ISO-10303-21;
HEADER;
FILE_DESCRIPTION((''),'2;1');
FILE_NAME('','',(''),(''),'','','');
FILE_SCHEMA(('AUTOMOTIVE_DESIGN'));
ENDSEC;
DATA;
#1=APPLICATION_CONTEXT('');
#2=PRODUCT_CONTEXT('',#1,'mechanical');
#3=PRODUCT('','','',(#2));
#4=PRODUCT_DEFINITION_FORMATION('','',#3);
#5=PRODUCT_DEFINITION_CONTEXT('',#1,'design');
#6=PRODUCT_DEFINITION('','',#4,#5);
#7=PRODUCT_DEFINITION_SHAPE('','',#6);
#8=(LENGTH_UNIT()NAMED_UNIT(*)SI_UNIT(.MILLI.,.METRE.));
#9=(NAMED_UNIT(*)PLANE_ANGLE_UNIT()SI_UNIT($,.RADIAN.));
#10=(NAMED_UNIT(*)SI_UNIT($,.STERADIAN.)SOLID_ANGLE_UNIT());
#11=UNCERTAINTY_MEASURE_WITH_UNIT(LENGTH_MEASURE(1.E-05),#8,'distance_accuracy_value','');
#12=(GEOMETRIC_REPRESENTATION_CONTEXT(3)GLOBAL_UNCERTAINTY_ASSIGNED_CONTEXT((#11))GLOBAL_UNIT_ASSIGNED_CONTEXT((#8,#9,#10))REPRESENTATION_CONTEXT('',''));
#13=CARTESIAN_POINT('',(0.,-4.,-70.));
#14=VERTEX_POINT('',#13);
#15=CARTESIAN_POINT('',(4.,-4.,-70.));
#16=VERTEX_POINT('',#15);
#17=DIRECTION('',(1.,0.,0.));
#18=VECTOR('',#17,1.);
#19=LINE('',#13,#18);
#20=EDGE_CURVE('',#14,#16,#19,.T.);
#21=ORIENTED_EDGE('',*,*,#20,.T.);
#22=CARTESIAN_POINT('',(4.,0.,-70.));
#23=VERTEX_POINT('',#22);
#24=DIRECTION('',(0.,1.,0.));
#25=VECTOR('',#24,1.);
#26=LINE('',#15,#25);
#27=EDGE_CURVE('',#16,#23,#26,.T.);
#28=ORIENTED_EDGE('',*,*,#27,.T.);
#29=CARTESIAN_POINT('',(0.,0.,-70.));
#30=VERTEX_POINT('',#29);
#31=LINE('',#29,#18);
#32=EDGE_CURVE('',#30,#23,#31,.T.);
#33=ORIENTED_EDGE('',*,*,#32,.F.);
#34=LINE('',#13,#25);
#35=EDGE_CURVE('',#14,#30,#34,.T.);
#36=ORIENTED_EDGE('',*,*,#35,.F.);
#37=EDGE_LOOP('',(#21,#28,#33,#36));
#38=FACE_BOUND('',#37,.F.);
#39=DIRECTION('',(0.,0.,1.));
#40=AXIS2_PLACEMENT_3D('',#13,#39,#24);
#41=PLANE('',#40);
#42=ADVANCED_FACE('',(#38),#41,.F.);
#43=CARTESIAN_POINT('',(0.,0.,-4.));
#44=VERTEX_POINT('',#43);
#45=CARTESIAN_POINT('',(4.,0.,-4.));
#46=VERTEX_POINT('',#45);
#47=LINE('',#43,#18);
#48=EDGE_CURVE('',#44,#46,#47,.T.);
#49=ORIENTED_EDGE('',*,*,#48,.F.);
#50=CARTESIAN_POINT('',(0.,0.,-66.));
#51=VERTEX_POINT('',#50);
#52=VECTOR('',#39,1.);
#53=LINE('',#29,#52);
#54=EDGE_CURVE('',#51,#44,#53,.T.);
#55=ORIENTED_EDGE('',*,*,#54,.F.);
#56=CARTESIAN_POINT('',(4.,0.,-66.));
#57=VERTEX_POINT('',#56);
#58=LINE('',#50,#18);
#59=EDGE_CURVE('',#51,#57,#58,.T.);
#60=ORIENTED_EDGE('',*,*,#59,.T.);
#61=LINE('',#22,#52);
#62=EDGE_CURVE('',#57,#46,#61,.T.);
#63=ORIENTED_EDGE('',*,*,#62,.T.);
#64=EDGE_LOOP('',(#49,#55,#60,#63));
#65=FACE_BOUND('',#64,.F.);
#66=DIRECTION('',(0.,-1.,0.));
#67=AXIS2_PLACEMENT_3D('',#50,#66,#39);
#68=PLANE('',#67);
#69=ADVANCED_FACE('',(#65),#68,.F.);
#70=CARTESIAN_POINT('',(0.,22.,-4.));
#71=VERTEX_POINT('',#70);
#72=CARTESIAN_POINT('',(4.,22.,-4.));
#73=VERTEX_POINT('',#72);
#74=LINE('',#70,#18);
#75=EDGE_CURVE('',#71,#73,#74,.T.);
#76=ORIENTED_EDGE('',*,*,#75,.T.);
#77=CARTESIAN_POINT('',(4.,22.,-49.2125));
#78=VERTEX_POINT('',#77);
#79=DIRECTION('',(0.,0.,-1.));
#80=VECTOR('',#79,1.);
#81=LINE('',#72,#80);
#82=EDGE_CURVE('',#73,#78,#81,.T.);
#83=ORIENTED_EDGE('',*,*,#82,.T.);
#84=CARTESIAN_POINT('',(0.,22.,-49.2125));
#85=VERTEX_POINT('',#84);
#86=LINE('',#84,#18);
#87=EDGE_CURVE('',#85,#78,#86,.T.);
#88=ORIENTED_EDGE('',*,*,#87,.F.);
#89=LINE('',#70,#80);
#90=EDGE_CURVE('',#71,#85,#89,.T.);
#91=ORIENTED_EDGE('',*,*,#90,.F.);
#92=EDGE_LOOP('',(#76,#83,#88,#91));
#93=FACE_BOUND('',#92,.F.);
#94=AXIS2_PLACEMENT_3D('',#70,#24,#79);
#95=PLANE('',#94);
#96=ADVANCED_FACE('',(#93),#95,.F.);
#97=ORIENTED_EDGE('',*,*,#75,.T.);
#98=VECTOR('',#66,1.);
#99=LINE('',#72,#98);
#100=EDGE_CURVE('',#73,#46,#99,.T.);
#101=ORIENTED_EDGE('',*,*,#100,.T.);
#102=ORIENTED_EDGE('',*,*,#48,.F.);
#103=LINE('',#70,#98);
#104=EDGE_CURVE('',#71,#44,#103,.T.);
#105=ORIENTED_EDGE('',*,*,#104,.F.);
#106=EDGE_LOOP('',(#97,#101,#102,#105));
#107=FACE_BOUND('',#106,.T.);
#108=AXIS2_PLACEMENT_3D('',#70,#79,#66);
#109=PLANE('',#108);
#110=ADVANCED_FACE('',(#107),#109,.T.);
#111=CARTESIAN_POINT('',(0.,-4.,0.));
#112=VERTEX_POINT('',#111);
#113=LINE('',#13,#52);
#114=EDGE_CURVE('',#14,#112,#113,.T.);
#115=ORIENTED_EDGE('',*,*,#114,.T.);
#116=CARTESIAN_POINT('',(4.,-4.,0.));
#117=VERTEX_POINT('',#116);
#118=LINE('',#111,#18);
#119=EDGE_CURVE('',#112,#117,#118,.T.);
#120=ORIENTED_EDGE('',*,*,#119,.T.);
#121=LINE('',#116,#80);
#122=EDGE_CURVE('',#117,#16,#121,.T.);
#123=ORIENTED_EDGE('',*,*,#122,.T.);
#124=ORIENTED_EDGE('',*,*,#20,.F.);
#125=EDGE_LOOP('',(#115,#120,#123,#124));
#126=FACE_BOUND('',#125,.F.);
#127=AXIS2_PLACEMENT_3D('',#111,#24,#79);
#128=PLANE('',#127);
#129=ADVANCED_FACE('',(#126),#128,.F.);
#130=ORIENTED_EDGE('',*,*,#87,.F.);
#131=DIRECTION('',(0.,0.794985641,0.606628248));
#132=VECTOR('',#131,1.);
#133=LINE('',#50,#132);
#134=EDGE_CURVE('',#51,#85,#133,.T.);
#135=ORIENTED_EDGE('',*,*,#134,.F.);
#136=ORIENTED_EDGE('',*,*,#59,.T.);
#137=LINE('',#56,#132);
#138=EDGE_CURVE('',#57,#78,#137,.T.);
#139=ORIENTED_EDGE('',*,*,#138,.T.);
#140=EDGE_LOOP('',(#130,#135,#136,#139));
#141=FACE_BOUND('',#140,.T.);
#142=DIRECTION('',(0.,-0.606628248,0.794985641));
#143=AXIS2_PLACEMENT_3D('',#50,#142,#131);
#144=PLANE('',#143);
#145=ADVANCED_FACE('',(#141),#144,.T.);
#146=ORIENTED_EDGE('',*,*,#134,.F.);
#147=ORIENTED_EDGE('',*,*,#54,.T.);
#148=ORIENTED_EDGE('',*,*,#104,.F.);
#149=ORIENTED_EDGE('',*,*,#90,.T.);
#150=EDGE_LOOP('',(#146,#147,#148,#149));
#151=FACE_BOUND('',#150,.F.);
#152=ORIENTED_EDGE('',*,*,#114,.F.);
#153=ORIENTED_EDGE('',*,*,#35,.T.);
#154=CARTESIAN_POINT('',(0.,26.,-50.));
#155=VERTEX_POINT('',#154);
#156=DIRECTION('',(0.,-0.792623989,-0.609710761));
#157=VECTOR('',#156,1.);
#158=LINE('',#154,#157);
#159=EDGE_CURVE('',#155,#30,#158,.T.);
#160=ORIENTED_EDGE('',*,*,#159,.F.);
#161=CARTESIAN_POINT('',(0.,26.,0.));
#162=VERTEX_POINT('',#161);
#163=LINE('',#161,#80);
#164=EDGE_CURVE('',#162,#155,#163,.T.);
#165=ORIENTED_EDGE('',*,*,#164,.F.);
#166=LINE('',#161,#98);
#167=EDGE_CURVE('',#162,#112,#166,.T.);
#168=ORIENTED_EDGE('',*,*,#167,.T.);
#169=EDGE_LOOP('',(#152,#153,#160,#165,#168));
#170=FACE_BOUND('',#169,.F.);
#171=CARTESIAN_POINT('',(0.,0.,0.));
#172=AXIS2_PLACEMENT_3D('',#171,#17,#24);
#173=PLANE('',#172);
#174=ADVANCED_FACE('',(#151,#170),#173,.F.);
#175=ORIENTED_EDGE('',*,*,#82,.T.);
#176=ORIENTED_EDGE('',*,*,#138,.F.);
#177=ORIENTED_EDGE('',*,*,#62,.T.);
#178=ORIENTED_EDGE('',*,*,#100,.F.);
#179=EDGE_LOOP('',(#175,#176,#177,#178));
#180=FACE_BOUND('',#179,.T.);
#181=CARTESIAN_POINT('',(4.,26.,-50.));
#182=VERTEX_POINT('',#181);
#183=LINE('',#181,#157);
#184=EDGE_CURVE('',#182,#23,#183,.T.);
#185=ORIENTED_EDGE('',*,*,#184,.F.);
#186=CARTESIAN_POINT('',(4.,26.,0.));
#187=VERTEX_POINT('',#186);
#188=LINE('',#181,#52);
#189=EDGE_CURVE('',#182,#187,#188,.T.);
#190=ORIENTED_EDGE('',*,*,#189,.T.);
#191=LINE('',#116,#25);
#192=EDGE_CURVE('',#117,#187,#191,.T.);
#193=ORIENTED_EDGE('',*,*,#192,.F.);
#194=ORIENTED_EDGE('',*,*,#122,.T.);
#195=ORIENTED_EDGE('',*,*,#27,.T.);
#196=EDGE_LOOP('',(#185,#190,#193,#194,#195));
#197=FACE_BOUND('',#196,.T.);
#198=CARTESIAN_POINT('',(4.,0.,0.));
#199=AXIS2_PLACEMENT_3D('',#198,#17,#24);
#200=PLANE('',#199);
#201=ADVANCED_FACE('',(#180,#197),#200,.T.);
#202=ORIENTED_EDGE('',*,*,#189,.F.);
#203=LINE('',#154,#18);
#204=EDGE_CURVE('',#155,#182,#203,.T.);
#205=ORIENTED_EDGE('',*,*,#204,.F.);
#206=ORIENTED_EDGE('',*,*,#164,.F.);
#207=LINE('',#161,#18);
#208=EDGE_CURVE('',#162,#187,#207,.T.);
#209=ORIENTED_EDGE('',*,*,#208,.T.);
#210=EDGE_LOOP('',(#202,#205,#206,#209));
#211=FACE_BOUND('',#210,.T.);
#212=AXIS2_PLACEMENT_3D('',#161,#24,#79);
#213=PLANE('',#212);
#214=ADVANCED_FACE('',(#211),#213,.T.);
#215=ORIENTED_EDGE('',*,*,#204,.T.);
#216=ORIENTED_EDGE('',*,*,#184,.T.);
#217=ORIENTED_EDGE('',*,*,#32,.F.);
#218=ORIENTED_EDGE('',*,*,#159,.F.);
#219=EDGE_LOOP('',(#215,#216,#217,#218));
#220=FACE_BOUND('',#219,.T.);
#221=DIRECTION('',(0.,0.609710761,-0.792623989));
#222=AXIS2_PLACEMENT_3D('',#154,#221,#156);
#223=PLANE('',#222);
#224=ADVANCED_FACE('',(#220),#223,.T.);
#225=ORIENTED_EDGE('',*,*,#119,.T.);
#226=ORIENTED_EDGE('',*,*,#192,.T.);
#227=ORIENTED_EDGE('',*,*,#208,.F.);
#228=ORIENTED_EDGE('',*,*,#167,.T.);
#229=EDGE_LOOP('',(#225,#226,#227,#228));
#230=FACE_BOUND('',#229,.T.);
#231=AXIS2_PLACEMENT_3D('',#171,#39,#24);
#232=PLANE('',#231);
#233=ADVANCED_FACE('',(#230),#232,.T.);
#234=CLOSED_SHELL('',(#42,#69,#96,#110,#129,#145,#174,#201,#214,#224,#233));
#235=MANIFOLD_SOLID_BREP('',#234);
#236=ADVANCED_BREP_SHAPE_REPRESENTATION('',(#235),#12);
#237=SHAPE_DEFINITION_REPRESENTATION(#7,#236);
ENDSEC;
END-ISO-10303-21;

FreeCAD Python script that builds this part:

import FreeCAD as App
import Part
import Sketcher

V = App.Vector
Q = App.Units.Quantity

doc = App.newDocument("Part")
body = doc.addObject("PartDesign::Body", "Body")

sketch1 = doc.addObject("Sketcher::SketchObject", "Sketch")
body.addObject(sketch1)
sketch1.AttachmentSupport = (doc.YZ_Plane, [""])
sketch1.MapMode = "FlatFace"
sketch1.addGeometry([
    Part.LineSegment(V(-4, 0, 0), V(-4, -70, 0)),
    Part.LineSegment(V(-4, -70, 0), V(0, -70, 0)),
    Part.LineSegment(V(0, -70, 0), V(26, -50, 0)),
    Part.LineSegment(V(26, -50, 0), V(26, 0, 0)),
    Part.LineSegment(V(26, 0, 0), V(-4, 0, 0)),
    Part.LineSegment(V(22, -4, 0), V(22, -49.2, 0)),
    Part.LineSegment(V(22, -49.2, 0), V(0, -66, 0)),
    Part.LineSegment(V(0, -66, 0), V(0, -4, 0)),
    Part.LineSegment(V(0, -4, 0), V(22, -4, 0)),
], False)
sketch1.addConstraint([
    Sketcher.Constraint("Coincident", 0, 2, 1, 1),
    Sketcher.Constraint("Coincident", 1, 2, 2, 1),
    Sketcher.Constraint("Coincident", 2, 2, 3, 1),
    Sketcher.Constraint("Coincident", 3, 2, 4, 1),
    Sketcher.Constraint("Coincident", 4, 2, 0, 1),
    Sketcher.Constraint("Coincident", 5, 2, 6, 1),
    Sketcher.Constraint("Coincident", 6, 2, 7, 1),
    Sketcher.Constraint("Coincident", 7, 2, 8, 1),
    Sketcher.Constraint("Coincident", 8, 2, 5, 1),
    Sketcher.Constraint("Vertical", 0),
    Sketcher.Constraint("Horizontal", 1),
    Sketcher.Constraint("Vertical", 3),
    Sketcher.Constraint("Horizontal", 4),
    Sketcher.Constraint("Vertical", 5),
    Sketcher.Constraint("Vertical", 7),
    Sketcher.Constraint("Horizontal", 8),
    Sketcher.Constraint("PointOnObject", 1, 2, -2),
    Sketcher.Constraint("PointOnObject", 3, 2, -1),
    Sketcher.Constraint("PointOnObject", 6, 2, -2),
    Sketcher.Constraint("DistanceX", 1, 1, 1, 2, Q("4 mm")),
    Sketcher.Constraint("DistanceX", 4, 2, 4, 1, Q("30 mm")),
    Sketcher.Constraint("DistanceY", 0, 2, 0, 1, Q("70 mm")),
    Sketcher.Constraint("DistanceY", 3, 1, 3, 2, Q("50 mm")),
    Sketcher.Constraint("DistanceY", 7, 2, -1, 1, Q("4 mm")),
    Sketcher.Constraint("DistanceX", 5, 2, 2, 2, Q("4 mm")),
    Sketcher.Constraint("DistanceY", 1, 2, 6, 2, Q("4 mm")),
    Sketcher.Constraint("DistanceY", 5, 2, 5, 1, Q("45.2125 mm")),
])
pad1 = doc.addObject("PartDesign::Pad", "Pad")
body.addObject(pad1)
pad1.Profile = sketch1
pad1.Length = 4

doc.recompute()
